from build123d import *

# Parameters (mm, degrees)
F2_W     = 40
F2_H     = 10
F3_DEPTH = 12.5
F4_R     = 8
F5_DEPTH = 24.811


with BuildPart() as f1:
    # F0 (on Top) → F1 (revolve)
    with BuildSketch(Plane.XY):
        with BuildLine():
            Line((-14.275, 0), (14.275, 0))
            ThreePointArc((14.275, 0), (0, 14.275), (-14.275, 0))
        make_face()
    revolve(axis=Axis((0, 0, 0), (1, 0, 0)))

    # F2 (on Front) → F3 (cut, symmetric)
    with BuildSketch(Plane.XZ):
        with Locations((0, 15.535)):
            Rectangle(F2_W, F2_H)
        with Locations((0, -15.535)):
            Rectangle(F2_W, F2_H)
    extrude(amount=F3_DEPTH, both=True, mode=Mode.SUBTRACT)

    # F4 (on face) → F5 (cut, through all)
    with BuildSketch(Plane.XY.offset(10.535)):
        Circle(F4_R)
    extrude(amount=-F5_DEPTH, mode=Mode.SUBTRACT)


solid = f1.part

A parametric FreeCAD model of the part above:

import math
import FreeCAD as App
import Part
import Sketcher
from FreeCAD import Vector
Q = App.Units.Quantity

doc = App.newDocument("Part")
body = doc.addObject("PartDesign::Body", "Body")

sketch1 = body.newObject("Sketcher::SketchObject", "Sketch")
sketch1.AttachmentSupport = (doc.getObject("XY_Plane"), [""])
sketch1.MapMode = "FlatFace"
sketch1.addGeometry([
    Part.LineSegment(Vector(-14, 0, 0), Vector(14, 0, 0)),
    Part.ArcOfCircle(Part.Circle(Vector(0, 0, 0), Vector(0, 0, 1), 14), math.radians(0), math.radians(180)),
], False)
sketch1.addConstraint([
    Sketcher.Constraint("Coincident", 0, 1, 1, 2),
    Sketcher.Constraint("Coincident", 1, 1, 0, 2),
    Sketcher.Constraint("Horizontal", 0),
    Sketcher.Constraint("Coincident", 1, 3, -1, 1),
    Sketcher.Constraint("PointOnObject", 0, 1, -1),
    Sketcher.Constraint("Radius", 1, Q("14.275 mm")),
])
revolution = body.newObject("PartDesign::Revolution", "Revolution")
revolution.Profile = sketch1
revolution.ReferenceAxis = (sketch1, ["H_Axis"])
revolution.Angle = 360

sketch2 = body.newObject("Sketcher::SketchObject", "Sketch001")
sketch2.AttachmentSupport = (doc.getObject("XZ_Plane"), [""])
sketch2.MapMode = "FlatFace"
sketch2.addGeometry([
    Part.LineSegment(Vector(-20, 21, 0), Vector(-20, 11, 0)),
    Part.LineSegment(Vector(-20, 11, 0), Vector(20, 11, 0)),
    Part.LineSegment(Vector(20, 11, 0), Vector(20, 21, 0)),
    Part.LineSegment(Vector(20, 21, 0), Vector(-20, 21, 0)),
    Part.LineSegment(Vector(-20, -11, 0), Vector(-20, -21, 0)),
    Part.LineSegment(Vector(-20, -21, 0), Vector(20, -21, 0)),
    Part.LineSegment(Vector(20, -21, 0), Vector(20, -11, 0)),
    Part.LineSegment(Vector(20, -11, 0), Vector(-20, -11, 0)),
], False)
sketch2.addConstraint([
    Sketcher.Constraint("Coincident", 0, 2, 1, 1),
    Sketcher.Constraint("Coincident", 1, 2, 2, 1),
    Sketcher.Constraint("Coincident", 2, 2, 3, 1),
    Sketcher.Constraint("Coincident", 3, 2, 0, 1),
    Sketcher.Constraint("Coincident", 4, 2, 5, 1),
    Sketcher.Constraint("Coincident", 5, 2, 6, 1),
    Sketcher.Constraint("Coincident", 6, 2, 7, 1),
    Sketcher.Constraint("Coincident", 7, 2, 4, 1),
    Sketcher.Constraint("Vertical", 0),
    Sketcher.Constraint("Horizontal", 1),
    Sketcher.Constraint("Vertical", 2),
    Sketcher.Constraint("Horizontal", 3),
    Sketcher.Constraint("Vertical", 4),
    Sketcher.Constraint("Horizontal", 5),
    Sketcher.Constraint("Vertical", 6),
    Sketcher.Constraint("Horizontal", 7),
    Sketcher.Constraint("Symmetric", 2, 2, 4, 2, -1, 1),
    Sketcher.Constraint("Symmetric", 0, 2, 6, 2, -1, 1),
    Sketcher.Constraint("Vertical", 3, 2, 4, 2),
    Sketcher.Constraint("DistanceX", 1, 1, 1, 2, Q("40 mm")),
    Sketcher.Constraint("DistanceY", 0, 2, 0, 1, Q("10 mm")),
    Sketcher.Constraint("DistanceY", 4, 2, 0, 2, Q("31.07 mm")),
])
pocket1 = body.newObject("PartDesign::Pocket", "Pocket")
pocket1.Profile = sketch2
pocket1.Length = 25
pocket1.Midplane = True

sketch3 = body.newObject("Sketcher::SketchObject", "Sketch002")
sketch3.AttachmentSupport = (doc.getObject("XY_Plane"), [""])
sketch3.MapMode = "FlatFace"
sketch3.AttachmentOffset = App.Placement(Vector(0, 0, 10.535), App.Rotation())
sketch3.addGeometry(Part.Circle(Vector(0, 0, 0), Vector(0, 0, 1), 8), False)
sketch3.addConstraint([
    Sketcher.Constraint("Coincident", 0, 3, -1, 1),
    Sketcher.Constraint("Diameter", 0, Q("16 mm")),
])
pocket2 = body.newObject("PartDesign::Pocket", "Pocket001")
pocket2.Profile = sketch3
pocket2.Type = "ThroughAll"

doc.recompute()
